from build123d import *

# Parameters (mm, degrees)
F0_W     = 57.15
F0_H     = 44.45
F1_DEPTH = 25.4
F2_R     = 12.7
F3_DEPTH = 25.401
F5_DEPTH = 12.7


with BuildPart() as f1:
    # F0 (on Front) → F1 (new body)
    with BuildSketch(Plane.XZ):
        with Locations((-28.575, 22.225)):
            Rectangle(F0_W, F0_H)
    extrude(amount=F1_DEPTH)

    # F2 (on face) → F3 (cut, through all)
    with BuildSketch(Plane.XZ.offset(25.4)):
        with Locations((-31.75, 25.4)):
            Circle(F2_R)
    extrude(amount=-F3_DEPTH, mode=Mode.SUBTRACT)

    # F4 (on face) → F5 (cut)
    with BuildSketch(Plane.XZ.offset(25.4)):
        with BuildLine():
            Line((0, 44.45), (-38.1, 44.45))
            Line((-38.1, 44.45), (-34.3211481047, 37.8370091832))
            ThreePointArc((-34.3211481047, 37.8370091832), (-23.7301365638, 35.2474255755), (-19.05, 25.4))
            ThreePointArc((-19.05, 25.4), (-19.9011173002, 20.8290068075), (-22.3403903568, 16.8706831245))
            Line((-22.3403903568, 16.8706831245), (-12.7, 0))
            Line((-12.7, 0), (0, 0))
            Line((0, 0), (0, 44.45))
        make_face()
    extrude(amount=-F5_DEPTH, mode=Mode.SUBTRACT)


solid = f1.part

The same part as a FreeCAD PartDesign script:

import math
import FreeCAD as App
import Part
import Sketcher
from FreeCAD import Vector
Q = App.Units.Quantity

doc = App.newDocument("Part")
params = doc.addObject("Spreadsheet::Sheet", "Params")
for row, (alias, value) in enumerate([
    ("sketch1_width", "2.25 in"),
    ("sketch1_height", "1.75 in"),
    ("pad1_length", "1 in"),
    ("sketch2_diameter", "1 in"),
    ("sketch3_radius", "0.5 in"),
    ("sketch3_width", "1.5 in"),
    ("sketch3_width2", "0.5 in"),
    ("sketch3_height", "1.75 in"),
    ("pocket2_length", "0.5 in"),
], start=1):
    params.set(f"A{row}", alias)
    params.set(f"B{row}", "=" + value)
    params.setAlias(f"B{row}", alias)

body = doc.addObject("PartDesign::Body", "Body")

# Sketch on XZ plane
sketch1 = body.newObject("Sketcher::SketchObject", "Sketch")
sketch1.AttachmentSupport = (doc.getObject("XZ_Plane"), [""])
sketch1.MapMode = "FlatFace"
sketch1.addGeometry([
    Part.LineSegment(Vector(-57, 44, 0), Vector(-57, 0, 0)),
    Part.LineSegment(Vector(-57, 0, 0), Vector(0, 0, 0)),
    Part.LineSegment(Vector(0, 0, 0), Vector(0, 44, 0)),
    Part.LineSegment(Vector(0, 44, 0), Vector(-57, 44, 0)),
], False)
sketch1.addConstraint([
    Sketcher.Constraint("Coincident", 0, 2, 1, 1),
    Sketcher.Constraint("Coincident", 1, 2, 2, 1),
    Sketcher.Constraint("Coincident", 2, 2, 3, 1),
    Sketcher.Constraint("Coincident", 3, 2, 0, 1),
    Sketcher.Constraint("Vertical", 0),
    Sketcher.Constraint("Horizontal", 1),
    Sketcher.Constraint("Vertical", 2),
    Sketcher.Constraint("Horizontal", 3),
    Sketcher.Constraint("Coincident", 1, 2, -1, 1),
    Sketcher.Constraint("DistanceX", 1, 1, 1, 2, Q("2.25 in")),
    Sketcher.Constraint("DistanceY", 0, 2, 0, 1, Q("1.75 in")),
])
sketch1.setExpression("Constraints[9]", "Params.sketch1_width")
sketch1.setExpression("Constraints[10]", "Params.sketch1_height")
pad1 = body.newObject("PartDesign::Pad", "Pad")
pad1.Profile = sketch1
pad1.setExpression("Length", "Params.pad1_length")

# Sketch on XZ plane
sketch2 = body.newObject("Sketcher::SketchObject", "Sketch001")
sketch2.AttachmentSupport = (doc.getObject("XZ_Plane"), [""])
sketch2.MapMode = "FlatFace"
sketch2.AttachmentOffset = App.Placement(Vector(0, 0, 1 * 25.4), App.Rotation())
sketch2.addGeometry(Part.Circle(Vector(-32, 25, 0), Vector(0, 0, 1), 13), False)
sketch2.addConstraint([
    Sketcher.Constraint("Diameter", 0, Q("1 in")),
    Sketcher.Constraint("DistanceY", -1, 1, 0, 3, Q("1 in")),
    Sketcher.Constraint("DistanceX", 0, 3, -1, 1, Q("1.25 in")),
])
sketch2.setExpression("Constraints[0]", "Params.sketch2_diameter")
pocket1 = body.newObject("PartDesign::Pocket", "Pocket")
pocket1.Profile = sketch2
pocket1.Type = "ThroughAll"

# Sketch on XZ plane
sketch3 = body.newObject("Sketcher::SketchObject", "Sketch002")
sketch3.AttachmentSupport = (doc.getObject("XZ_Plane"), [""])
sketch3.MapMode = "FlatFace"
sketch3.AttachmentOffset = App.Placement(Vector(0, 0, 1 * 25.4), App.Rotation())
sketch3.addGeometry([
    Part.LineSegment(Vector(0, 44, 0), Vector(-38, 44, 0)),  # 0
    Part.LineSegment(Vector(-38, 44, 0), Vector(-34, 38, 0)),  # 1
    Part.ArcOfCircle(Part.Circle(Vector(-32, 25, 0), Vector(0, 0, 1), 13), math.radians(0), math.radians(102)),  # 2
    Part.ArcOfCircle(Part.Circle(Vector(-32, 25, 0), Vector(0, 0, 1), 13), math.radians(-42), math.radians(0)),  # 3
    Part.LineSegment(Vector(-22, 17, 0), Vector(-13, 0, 0)),  # 4
    Part.LineSegment(Vector(-13, 0, 0), Vector(0, 0, 0)),  # 5
    Part.LineSegment(Vector(0, 0, 0), Vector(0, 44, 0)),  # 6
], False)
sketch3.addConstraint([
    Sketcher.Constraint("Coincident", 0, 2, 1, 1),
    Sketcher.Constraint("Coincident", 1, 2, 2, 2),
    Sketcher.Constraint("Tangent", 2, 1, 3, 2),
    Sketcher.Constraint("Coincident", 3, 1, 4, 1),
    Sketcher.Constraint("Coincident", 4, 2, 5, 1),
    Sketcher.Constraint("Coincident", 5, 2, 6, 1),
    Sketcher.Constraint("Coincident", 6, 2, 0, 1),
    Sketcher.Constraint("Horizontal", 0),
    Sketcher.Constraint("Horizontal", 5),
    Sketcher.Constraint("Vertical", 6),
    Sketcher.Constraint("Coincident", 5, 2, -1, 1),
    Sketcher.Constraint("Equal", 2, 3),
    Sketcher.Constraint("Parallel", 1, 4),
    Sketcher.Constraint("Horizontal", 3, 3, 2, 1),
    Sketcher.Constraint("Radius", 2, Q("0.5 in")),
    Sketcher.Constraint("DistanceX", 0, 2, 0, 1, Q("1.5 in")),
    Sketcher.Constraint("DistanceX", 5, 1, 5, 2, Q("0.5 in")),
    Sketcher.Constraint("DistanceY", -1, 1, 2, 3, Q("1 in")),
    Sketcher.Constraint("DistanceY", 6, 1, 6, 2, Q("1.75 in")),
    Sketcher.Constraint("DistanceX", 2, 3, -1, 1, Q("1.25 in")),
    Sketcher.Constraint("DistanceY", -1, 1, 3, 1, Q("0.6642001 in")),
])
sketch3.setExpression("Constraints[14]", "Params.sketch3_radius")
sketch3.setExpression("Constraints[15]", "Params.sketch3_width")
sketch3.setExpression("Constraints[16]", "Params.sketch3_width2")
sketch3.setExpression("Constraints[18]", "Params.sketch3_height")
pocket2 = body.newObject("PartDesign::Pocket", "Pocket001")
pocket2.Profile = sketch3
pocket2.setExpression("Length", "Params.pocket2_length")

doc.recompute()
